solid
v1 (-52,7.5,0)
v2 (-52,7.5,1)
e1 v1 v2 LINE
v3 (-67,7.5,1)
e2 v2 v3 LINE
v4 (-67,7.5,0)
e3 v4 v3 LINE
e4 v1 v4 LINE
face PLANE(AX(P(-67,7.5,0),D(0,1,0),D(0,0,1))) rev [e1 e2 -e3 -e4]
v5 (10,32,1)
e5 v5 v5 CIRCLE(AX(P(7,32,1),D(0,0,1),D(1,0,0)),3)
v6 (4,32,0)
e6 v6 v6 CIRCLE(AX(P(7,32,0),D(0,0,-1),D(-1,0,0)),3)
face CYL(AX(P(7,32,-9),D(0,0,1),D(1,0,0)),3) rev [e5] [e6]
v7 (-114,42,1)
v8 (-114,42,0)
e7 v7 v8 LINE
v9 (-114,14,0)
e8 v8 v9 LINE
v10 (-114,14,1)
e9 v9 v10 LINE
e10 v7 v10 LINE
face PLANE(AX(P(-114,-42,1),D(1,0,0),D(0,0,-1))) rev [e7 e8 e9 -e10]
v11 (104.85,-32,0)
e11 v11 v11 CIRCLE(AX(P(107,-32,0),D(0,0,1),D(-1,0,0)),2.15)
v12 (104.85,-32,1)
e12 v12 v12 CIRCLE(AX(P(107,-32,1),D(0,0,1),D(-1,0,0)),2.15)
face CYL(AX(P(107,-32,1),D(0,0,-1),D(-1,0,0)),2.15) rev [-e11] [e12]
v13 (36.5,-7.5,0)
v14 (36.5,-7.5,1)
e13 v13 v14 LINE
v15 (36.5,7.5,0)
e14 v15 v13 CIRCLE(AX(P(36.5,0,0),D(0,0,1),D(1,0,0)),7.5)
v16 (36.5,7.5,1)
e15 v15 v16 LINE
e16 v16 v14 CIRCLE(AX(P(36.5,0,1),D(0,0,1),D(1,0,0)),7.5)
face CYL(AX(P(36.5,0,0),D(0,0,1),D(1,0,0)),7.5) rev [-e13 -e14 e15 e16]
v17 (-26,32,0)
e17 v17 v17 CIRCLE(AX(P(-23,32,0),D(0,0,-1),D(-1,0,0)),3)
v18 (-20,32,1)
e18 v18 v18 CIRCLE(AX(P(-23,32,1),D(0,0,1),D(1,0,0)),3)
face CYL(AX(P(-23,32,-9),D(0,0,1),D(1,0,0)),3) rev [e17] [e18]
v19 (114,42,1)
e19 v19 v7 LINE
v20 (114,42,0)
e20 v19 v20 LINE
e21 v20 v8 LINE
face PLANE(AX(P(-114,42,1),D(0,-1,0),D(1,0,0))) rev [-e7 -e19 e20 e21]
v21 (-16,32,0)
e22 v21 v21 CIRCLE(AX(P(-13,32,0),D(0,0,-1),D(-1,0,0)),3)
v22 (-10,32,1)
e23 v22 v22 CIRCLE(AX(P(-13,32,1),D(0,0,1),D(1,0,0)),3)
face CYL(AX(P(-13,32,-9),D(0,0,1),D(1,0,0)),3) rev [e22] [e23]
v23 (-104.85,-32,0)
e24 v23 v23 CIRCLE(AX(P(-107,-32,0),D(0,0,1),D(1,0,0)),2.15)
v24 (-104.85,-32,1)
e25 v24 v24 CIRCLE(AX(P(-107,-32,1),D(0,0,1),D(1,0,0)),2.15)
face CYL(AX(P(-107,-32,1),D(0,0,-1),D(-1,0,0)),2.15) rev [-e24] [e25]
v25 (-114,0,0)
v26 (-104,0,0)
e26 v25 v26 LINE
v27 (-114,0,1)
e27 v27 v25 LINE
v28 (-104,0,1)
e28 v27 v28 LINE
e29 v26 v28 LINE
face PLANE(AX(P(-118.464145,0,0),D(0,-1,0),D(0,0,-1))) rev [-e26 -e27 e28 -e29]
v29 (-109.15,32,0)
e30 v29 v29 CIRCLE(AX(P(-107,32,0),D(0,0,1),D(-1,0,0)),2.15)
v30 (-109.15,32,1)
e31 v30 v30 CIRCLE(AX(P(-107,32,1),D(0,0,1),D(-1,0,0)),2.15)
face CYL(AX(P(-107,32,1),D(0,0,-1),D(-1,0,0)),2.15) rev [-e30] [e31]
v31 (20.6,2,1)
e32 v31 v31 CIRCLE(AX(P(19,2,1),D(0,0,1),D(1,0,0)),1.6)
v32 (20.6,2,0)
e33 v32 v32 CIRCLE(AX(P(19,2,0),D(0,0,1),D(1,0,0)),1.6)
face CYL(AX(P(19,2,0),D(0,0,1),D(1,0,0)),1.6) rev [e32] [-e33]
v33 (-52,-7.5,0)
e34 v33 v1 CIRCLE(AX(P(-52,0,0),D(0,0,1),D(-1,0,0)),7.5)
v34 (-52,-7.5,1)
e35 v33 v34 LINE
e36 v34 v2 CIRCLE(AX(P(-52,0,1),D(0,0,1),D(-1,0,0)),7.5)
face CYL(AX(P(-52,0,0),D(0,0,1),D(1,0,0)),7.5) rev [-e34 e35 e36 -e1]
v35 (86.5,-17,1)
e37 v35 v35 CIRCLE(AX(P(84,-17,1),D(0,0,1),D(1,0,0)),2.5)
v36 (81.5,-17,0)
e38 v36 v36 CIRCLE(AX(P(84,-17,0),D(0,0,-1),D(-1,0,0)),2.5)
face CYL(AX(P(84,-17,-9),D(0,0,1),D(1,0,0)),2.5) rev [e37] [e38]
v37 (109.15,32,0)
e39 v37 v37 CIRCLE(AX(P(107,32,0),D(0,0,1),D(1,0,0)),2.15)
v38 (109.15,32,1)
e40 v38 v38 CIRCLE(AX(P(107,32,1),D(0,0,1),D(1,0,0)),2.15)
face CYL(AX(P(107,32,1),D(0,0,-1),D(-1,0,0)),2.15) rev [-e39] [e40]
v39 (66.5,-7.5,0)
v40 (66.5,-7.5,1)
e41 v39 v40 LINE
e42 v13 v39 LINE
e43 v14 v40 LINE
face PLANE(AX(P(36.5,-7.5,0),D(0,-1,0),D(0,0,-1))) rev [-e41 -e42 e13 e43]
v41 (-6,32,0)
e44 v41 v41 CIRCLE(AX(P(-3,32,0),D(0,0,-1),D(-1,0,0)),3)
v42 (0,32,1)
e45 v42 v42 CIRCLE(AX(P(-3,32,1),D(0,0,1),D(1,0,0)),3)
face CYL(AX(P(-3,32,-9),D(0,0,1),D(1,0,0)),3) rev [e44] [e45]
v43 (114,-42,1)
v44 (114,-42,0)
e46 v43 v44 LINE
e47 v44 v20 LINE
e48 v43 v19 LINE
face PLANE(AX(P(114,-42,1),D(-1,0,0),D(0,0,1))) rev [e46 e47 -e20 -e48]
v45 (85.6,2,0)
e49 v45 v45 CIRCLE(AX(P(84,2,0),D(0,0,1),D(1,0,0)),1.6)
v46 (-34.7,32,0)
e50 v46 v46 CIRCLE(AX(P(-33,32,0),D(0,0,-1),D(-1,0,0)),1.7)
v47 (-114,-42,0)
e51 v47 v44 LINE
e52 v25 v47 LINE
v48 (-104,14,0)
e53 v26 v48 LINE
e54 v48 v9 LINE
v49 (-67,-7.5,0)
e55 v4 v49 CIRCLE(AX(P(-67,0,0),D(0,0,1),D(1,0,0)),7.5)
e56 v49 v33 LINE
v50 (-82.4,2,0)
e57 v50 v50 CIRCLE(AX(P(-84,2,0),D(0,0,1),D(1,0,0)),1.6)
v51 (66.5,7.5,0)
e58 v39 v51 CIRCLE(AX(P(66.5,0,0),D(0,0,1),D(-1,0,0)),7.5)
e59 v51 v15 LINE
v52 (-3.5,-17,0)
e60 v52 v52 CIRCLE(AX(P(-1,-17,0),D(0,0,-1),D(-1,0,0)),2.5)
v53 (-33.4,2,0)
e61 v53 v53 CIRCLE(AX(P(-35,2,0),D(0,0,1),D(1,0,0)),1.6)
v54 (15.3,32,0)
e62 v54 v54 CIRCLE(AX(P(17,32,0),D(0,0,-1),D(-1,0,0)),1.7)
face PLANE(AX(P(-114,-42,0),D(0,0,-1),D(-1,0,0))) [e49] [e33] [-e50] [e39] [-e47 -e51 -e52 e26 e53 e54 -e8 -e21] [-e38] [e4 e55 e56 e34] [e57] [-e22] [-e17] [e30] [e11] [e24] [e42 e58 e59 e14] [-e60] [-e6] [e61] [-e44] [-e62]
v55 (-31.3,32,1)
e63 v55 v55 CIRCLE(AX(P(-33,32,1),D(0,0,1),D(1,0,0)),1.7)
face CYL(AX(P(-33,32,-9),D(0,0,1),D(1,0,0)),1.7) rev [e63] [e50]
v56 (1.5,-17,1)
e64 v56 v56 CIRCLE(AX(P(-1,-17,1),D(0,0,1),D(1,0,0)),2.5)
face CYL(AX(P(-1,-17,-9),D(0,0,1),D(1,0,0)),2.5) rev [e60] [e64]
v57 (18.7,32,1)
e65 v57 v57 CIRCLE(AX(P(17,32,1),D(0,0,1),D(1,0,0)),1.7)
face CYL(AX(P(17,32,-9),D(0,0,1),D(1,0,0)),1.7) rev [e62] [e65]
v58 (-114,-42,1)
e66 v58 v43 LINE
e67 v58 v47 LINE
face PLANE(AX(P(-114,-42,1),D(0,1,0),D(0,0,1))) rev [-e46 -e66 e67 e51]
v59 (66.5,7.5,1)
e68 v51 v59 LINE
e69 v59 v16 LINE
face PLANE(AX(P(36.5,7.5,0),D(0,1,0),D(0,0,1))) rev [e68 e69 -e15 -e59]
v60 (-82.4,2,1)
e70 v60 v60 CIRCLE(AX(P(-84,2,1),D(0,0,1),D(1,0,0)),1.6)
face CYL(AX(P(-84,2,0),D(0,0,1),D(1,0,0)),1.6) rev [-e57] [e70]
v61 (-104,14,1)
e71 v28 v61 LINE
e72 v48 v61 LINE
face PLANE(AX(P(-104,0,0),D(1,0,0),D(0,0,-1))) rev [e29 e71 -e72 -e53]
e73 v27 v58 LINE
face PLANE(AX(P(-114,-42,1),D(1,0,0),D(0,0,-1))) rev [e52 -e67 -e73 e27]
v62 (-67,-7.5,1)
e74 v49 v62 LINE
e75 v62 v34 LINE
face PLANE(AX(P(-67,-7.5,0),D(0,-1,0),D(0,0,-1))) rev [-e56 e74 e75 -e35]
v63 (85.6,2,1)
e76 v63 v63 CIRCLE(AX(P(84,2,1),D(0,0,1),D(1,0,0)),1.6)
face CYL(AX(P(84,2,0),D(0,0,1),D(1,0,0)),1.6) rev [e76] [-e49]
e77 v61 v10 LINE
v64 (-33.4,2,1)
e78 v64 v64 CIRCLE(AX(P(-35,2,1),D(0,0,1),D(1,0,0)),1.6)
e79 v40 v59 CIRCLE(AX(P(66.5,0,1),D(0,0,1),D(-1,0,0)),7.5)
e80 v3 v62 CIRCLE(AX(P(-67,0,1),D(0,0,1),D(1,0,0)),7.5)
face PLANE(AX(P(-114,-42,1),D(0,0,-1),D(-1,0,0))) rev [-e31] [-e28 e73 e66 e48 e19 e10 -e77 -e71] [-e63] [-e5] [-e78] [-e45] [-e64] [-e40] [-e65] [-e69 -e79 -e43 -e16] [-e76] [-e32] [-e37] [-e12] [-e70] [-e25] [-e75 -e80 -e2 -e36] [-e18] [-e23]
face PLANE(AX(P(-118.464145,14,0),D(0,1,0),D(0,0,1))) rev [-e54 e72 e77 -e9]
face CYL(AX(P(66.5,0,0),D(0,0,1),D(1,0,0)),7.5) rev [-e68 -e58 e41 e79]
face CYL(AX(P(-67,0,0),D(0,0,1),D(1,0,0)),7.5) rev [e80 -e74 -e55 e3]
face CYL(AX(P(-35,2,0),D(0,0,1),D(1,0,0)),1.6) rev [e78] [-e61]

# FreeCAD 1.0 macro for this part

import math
import FreeCAD as App
import Part
import Sketcher
from FreeCAD import Vector

doc = App.newDocument("Part")
body = doc.addObject("PartDesign::Body", "Body")

# Sketch on XY plane
sketch1 = doc.addObject("Sketcher::SketchObject", "Sketch")
body.addObject(sketch1)
sketch1.AttachmentSupport = (doc.XY_Plane, [""])
sketch1.MapMode = "FlatFace"
sketch1.addGeometry([
    Part.LineSegment(Vector(-114, 42, 0), Vector(-114, -42, 0)),  # 0
    Part.LineSegment(Vector(-114, -42, 0), Vector(114, -42, 0)),  # 1
    Part.LineSegment(Vector(114, -42, 0), Vector(114, 42, 0)),  # 2
    Part.LineSegment(Vector(114, 42, 0), Vector(-114, 42, 0)),  # 3
    Part.Circle(Vector(-107, -32, 0), Vector(0, 0, 1), 2.1),  # 4
    Part.Circle(Vector(107, -32, 0), Vector(0, 0, 1), 2.1),  # 5
    Part.Circle(Vector(-107, 32, 0), Vector(0, 0, 1), 2.1),  # 6
    Part.Circle(Vector(107, 32, 0), Vector(0, 0, 1), 2.1),  # 7
], False)
sketch1.addConstraint([
    Sketcher.Constraint("Coincident", 0, 2, 1, 1),
    Sketcher.Constraint("Coincident", 1, 2, 2, 1),
    Sketcher.Constraint("Coincident", 2, 2, 3, 1),
    Sketcher.Constraint("Coincident", 3, 2, 0, 1),
    Sketcher.Constraint("Vertical", 0),
    Sketcher.Constraint("Horizontal", 1),
    Sketcher.Constraint("Vertical", 2),
    Sketcher.Constraint("Horizontal", 3),
    Sketcher.Constraint("Equal", 4, 5),
    Sketcher.Constraint("Equal", 5, 6),
    Sketcher.Constraint("Equal", 6, 7),
    Sketcher.Constraint("Symmetric", 5, 3, 6, 3, -1, 1),
    Sketcher.Constraint("Symmetric", 4, 3, 7, 3, -1, 1),
    Sketcher.Constraint("Symmetric", 0, 2, 2, 2, -1, 1),
    Sketcher.Constraint("Symmetric", 4, 3, 5, 3, -2),
    Sketcher.Constraint("Diameter", 4, 4.3),
    Sketcher.Constraint("DistanceX", 1, 1, 1, 2, 228.0),
    Sketcher.Constraint("DistanceY", 0, 2, 0, 1, 84.0),
    Sketcher.Constraint("DistanceX", 4, 3, -1, 1, 107.0),
    Sketcher.Constraint("DistanceY", 4, 3, -1, 1, 32.0),
])
pad1 = doc.addObject("PartDesign::Pad", "Pad")
body.addObject(pad1)
pad1.Profile = sketch1
pad1.Length = 1

# Sketch on XY plane
sketch2 = doc.addObject("Sketcher::SketchObject", "Sketch001")
body.addObject(sketch2)
sketch2.AttachmentSupport = (doc.XY_Plane, [""])
sketch2.MapMode = "FlatFace"
sketch2.AttachmentOffset = App.Placement(Vector(0, 0, 1), App.Rotation())
sketch2.addGeometry([
    Part.Circle(Vector(19, 2, 0), Vector(0, 0, 1), 1.6),  # 0
    Part.Circle(Vector(84, 2, 0), Vector(0, 0, 1), 1.6),  # 1
    Part.Circle(Vector(-84, 2, 0), Vector(0, 0, 1), 1.6),  # 2
    Part.Circle(Vector(-35, 2, 0), Vector(0, 0, 1), 1.6),  # 3
    Part.LineSegment(Vector(66.5, 7.5, 0), Vector(36.5, 7.5, 0)),  # 4
    Part.ArcOfCircle(Part.Circle(Vector(36.5, 0, 0), Vector(0, 0, 1), 7.5), math.radians(90), math.radians(270)),  # 5
    Part.LineSegment(Vector(36.5, -7.5, 0), Vector(66.5, -7.5, 0)),  # 6
    Part.ArcOfCircle(Part.Circle(Vector(66.5, 0, 0), Vector(0, 0, 1), 7.5), math.radians(-90), math.radians(90)),  # 7
    Part.LineSegment(Vector(-52, 7.5, 0), Vector(-67, 7.5, 0)),  # 8
    Part.ArcOfCircle(Part.Circle(Vector(-67, 0, 0), Vector(0, 0, 1), 7.5), math.radians(90), math.radians(270)),  # 9
    Part.LineSegment(Vector(-67, -7.5, 0), Vector(-52, -7.5, 0)),  # 10
    Part.ArcOfCircle(Part.Circle(Vector(-52, 0, 0), Vector(0, 0, 1), 7.5), math.radians(-90), math.radians(90)),  # 11
    Part.LineSegment(Vector(-118.5, 14, 0), Vector(-118.5, 0, 0)),  # 12
    Part.LineSegment(Vector(-118.5, 0, 0), Vector(-104, 0, 0)),  # 13
    Part.LineSegment(Vector(-104, 0, 0), Vector(-104, 14, 0)),  # 14
    Part.LineSegment(Vector(-104, 14, 0), Vector(-118.5, 14, 0)),  # 15
], False)
sketch2.addConstraint([
    Sketcher.Constraint("Tangent", 4, 2, 5, 1),
    Sketcher.Constraint("Tangent", 5, 2, 6, 1),
    Sketcher.Constraint("Tangent", 6, 2, 7, 1),
    Sketcher.Constraint("Tangent", 7, 2, 4, 1),
    Sketcher.Constraint("Tangent", 8, 2, 9, 1),
    Sketcher.Constraint("Tangent", 9, 2, 10, 1),
    Sketcher.Constraint("Tangent", 10, 2, 11, 1),
    Sketcher.Constraint("Tangent", 11, 2, 8, 1),
    Sketcher.Constraint("Coincident", 12, 2, 13, 1),
    Sketcher.Constraint("Coincident", 13, 2, 14, 1),
    Sketcher.Constraint("Coincident", 14, 2, 15, 1),
    Sketcher.Constraint("Coincident", 15, 2, 12, 1),
    Sketcher.Constraint("Horizontal", 4),
    Sketcher.Constraint("Horizontal", 6),
    Sketcher.Constraint("Horizontal", 8),
    Sketcher.Constraint("Horizontal", 10),
    Sketcher.Constraint("Vertical", 12),
    Sketcher.Constraint("Horizontal", 13),
    Sketcher.Constraint("Vertical", 14),
    Sketcher.Constraint("Horizontal", 15),
    Sketcher.Constraint("Equal", 0, 1),
    Sketcher.Constraint("Equal", 1, 2),
    Sketcher.Constraint("Equal", 2, 3),
    Sketcher.Constraint("Equal", 7, 9),
    Sketcher.Constraint("Symmetric", 1, 3, 2, 3, -2),
    Sketcher.Constraint("PointOnObject", 5, 3, -1),
    Sketcher.Constraint("PointOnObject", 9, 3, -1),
    Sketcher.Constraint("PointOnObject", 12, 2, -1),
    Sketcher.Constraint("Horizontal", 0, 3, 1, 3),
    Sketcher.Constraint("Horizontal", 2, 3, 3, 3),
    Sketcher.Constraint("Diameter", 0, 3.2),
    Sketcher.Constraint("Radius", 5, 7.5),
    Sketcher.Constraint("DistanceX", 4, 2, 4, 1, 30.0),
    Sketcher.Constraint("DistanceX", 8, 2, 8, 1, 15.0),
    Sketcher.Constraint("DistanceY", 12, 2, 12, 1, 14.0),
    Sketcher.Constraint("DistanceX", -1, 1, 0, 3, 19.0),
    Sketcher.Constraint("DistanceY", -1, 1, 0, 3, 2.0),
    Sketcher.Constraint("DistanceX", -1, 1, 1, 3, 84.0),
    Sketcher.Constraint("DistanceX", 3, 3, -1, 1, 35.0),
    Sketcher.Constraint("DistanceX", 9, 3, -1, 1, 67.0),
    Sketcher.Constraint("DistanceX", 13, 2, -1, 1, 104.0),
    Sketcher.Constraint("DistanceX", -1, 1, 5, 3, 36.5),
    Sketcher.Constraint("DistanceX", 13, 1, 13, 2, 14.464145),
])
pocket1 = doc.addObject("PartDesign::Pocket", "Pocket")
body.addObject(pocket1)
pocket1.Profile = sketch2
pocket1.Length = 1

# Sketch on XY plane
sketch3 = doc.addObject("Sketcher::SketchObject", "Sketch002")
body.addObject(sketch3)
sketch3.AttachmentSupport = (doc.XY_Plane, [""])
sketch3.MapMode = "FlatFace"
sketch3.AttachmentOffset = App.Placement(Vector(0, 0, 1), App.Rotation())
sketch3.addGeometry([
    Part.Circle(Vector(-33, 32, 0), Vector(0, 0, 1), 1.7),  # 0
    Part.Circle(Vector(17, 32, 0), Vector(0, 0, 1), 1.7),  # 1
    Part.Circle(Vector(7, 32, 0), Vector(0, 0, 1), 3),  # 2
    Part.Circle(Vector(-3, 32, 0), Vector(0, 0, 1), 3),  # 3
    Part.Circle(Vector(-13, 32, 0), Vector(0, 0, 1), 3),  # 4
    Part.Circle(Vector(-23, 32, 0), Vector(0, 0, 1), 3),  # 5
    Part.Circle(Vector(-1, -17, 0), Vector(0, 0, 1), 2.5),  # 6
    Part.Circle(Vector(84, -17, 0), Vector(0, 0, 1), 2.5),  # 7
], False)
sketch3.addConstraint([
    Sketcher.Constraint("Equal", 0, 1),
    Sketcher.Constraint("Equal", 2, 3),
    Sketcher.Constraint("Equal", 3, 4),
    Sketcher.Constraint("Equal", 4, 5),
    Sketcher.Constraint("Equal", 6, 7),
    Sketcher.Constraint("Horizontal", 0, 3, 1, 3),
    Sketcher.Constraint("Horizontal", 1, 3, 2, 3),
    Sketcher.Constraint("Horizontal", 2, 3, 3, 3),
    Sketcher.Constraint("Horizontal", 3, 3, 4, 3),
    Sketcher.Constraint("Horizontal", 4, 3, 5, 3),
    Sketcher.Constraint("Horizontal", 6, 3, 7, 3),
    Sketcher.Constraint("Diameter", 2, 6.0),
    Sketcher.Constraint("Diameter", 6, 5.0),
    Sketcher.Constraint("Diameter", 0, 3.4),
    Sketcher.Constraint("DistanceX", 0, 3, -1, 1, 33.0),
    Sketcher.Constraint("DistanceY", -1, 1, 0, 3, 32.0),
    Sketcher.Constraint("DistanceX", -1, 1, 1, 3, 17.0),
    Sketcher.Constraint("DistanceX", -1, 1, 2, 3, 7.0),
    Sketcher.Constraint("DistanceX", 3, 3, -1, 1, 3.0),
    Sketcher.Constraint("DistanceX", 4, 3, -1, 1, 13.0),
    Sketcher.Constraint("DistanceX", 5, 3, -1, 1, 23.0),
    Sketcher.Constraint("DistanceX", 6, 3, -1, 1, 1.0),
    Sketcher.Constraint("DistanceY", 6, 3, -1, 1, 17.0),
    Sketcher.Constraint("DistanceX", -1, 1, 7, 3, 84.0),
])
pocket2 = doc.addObject("PartDesign::Pocket", "Pocket001")
body.addObject(pocket2)
pocket2.Profile = sketch3
pocket2.Length = 10

doc.recompute()
